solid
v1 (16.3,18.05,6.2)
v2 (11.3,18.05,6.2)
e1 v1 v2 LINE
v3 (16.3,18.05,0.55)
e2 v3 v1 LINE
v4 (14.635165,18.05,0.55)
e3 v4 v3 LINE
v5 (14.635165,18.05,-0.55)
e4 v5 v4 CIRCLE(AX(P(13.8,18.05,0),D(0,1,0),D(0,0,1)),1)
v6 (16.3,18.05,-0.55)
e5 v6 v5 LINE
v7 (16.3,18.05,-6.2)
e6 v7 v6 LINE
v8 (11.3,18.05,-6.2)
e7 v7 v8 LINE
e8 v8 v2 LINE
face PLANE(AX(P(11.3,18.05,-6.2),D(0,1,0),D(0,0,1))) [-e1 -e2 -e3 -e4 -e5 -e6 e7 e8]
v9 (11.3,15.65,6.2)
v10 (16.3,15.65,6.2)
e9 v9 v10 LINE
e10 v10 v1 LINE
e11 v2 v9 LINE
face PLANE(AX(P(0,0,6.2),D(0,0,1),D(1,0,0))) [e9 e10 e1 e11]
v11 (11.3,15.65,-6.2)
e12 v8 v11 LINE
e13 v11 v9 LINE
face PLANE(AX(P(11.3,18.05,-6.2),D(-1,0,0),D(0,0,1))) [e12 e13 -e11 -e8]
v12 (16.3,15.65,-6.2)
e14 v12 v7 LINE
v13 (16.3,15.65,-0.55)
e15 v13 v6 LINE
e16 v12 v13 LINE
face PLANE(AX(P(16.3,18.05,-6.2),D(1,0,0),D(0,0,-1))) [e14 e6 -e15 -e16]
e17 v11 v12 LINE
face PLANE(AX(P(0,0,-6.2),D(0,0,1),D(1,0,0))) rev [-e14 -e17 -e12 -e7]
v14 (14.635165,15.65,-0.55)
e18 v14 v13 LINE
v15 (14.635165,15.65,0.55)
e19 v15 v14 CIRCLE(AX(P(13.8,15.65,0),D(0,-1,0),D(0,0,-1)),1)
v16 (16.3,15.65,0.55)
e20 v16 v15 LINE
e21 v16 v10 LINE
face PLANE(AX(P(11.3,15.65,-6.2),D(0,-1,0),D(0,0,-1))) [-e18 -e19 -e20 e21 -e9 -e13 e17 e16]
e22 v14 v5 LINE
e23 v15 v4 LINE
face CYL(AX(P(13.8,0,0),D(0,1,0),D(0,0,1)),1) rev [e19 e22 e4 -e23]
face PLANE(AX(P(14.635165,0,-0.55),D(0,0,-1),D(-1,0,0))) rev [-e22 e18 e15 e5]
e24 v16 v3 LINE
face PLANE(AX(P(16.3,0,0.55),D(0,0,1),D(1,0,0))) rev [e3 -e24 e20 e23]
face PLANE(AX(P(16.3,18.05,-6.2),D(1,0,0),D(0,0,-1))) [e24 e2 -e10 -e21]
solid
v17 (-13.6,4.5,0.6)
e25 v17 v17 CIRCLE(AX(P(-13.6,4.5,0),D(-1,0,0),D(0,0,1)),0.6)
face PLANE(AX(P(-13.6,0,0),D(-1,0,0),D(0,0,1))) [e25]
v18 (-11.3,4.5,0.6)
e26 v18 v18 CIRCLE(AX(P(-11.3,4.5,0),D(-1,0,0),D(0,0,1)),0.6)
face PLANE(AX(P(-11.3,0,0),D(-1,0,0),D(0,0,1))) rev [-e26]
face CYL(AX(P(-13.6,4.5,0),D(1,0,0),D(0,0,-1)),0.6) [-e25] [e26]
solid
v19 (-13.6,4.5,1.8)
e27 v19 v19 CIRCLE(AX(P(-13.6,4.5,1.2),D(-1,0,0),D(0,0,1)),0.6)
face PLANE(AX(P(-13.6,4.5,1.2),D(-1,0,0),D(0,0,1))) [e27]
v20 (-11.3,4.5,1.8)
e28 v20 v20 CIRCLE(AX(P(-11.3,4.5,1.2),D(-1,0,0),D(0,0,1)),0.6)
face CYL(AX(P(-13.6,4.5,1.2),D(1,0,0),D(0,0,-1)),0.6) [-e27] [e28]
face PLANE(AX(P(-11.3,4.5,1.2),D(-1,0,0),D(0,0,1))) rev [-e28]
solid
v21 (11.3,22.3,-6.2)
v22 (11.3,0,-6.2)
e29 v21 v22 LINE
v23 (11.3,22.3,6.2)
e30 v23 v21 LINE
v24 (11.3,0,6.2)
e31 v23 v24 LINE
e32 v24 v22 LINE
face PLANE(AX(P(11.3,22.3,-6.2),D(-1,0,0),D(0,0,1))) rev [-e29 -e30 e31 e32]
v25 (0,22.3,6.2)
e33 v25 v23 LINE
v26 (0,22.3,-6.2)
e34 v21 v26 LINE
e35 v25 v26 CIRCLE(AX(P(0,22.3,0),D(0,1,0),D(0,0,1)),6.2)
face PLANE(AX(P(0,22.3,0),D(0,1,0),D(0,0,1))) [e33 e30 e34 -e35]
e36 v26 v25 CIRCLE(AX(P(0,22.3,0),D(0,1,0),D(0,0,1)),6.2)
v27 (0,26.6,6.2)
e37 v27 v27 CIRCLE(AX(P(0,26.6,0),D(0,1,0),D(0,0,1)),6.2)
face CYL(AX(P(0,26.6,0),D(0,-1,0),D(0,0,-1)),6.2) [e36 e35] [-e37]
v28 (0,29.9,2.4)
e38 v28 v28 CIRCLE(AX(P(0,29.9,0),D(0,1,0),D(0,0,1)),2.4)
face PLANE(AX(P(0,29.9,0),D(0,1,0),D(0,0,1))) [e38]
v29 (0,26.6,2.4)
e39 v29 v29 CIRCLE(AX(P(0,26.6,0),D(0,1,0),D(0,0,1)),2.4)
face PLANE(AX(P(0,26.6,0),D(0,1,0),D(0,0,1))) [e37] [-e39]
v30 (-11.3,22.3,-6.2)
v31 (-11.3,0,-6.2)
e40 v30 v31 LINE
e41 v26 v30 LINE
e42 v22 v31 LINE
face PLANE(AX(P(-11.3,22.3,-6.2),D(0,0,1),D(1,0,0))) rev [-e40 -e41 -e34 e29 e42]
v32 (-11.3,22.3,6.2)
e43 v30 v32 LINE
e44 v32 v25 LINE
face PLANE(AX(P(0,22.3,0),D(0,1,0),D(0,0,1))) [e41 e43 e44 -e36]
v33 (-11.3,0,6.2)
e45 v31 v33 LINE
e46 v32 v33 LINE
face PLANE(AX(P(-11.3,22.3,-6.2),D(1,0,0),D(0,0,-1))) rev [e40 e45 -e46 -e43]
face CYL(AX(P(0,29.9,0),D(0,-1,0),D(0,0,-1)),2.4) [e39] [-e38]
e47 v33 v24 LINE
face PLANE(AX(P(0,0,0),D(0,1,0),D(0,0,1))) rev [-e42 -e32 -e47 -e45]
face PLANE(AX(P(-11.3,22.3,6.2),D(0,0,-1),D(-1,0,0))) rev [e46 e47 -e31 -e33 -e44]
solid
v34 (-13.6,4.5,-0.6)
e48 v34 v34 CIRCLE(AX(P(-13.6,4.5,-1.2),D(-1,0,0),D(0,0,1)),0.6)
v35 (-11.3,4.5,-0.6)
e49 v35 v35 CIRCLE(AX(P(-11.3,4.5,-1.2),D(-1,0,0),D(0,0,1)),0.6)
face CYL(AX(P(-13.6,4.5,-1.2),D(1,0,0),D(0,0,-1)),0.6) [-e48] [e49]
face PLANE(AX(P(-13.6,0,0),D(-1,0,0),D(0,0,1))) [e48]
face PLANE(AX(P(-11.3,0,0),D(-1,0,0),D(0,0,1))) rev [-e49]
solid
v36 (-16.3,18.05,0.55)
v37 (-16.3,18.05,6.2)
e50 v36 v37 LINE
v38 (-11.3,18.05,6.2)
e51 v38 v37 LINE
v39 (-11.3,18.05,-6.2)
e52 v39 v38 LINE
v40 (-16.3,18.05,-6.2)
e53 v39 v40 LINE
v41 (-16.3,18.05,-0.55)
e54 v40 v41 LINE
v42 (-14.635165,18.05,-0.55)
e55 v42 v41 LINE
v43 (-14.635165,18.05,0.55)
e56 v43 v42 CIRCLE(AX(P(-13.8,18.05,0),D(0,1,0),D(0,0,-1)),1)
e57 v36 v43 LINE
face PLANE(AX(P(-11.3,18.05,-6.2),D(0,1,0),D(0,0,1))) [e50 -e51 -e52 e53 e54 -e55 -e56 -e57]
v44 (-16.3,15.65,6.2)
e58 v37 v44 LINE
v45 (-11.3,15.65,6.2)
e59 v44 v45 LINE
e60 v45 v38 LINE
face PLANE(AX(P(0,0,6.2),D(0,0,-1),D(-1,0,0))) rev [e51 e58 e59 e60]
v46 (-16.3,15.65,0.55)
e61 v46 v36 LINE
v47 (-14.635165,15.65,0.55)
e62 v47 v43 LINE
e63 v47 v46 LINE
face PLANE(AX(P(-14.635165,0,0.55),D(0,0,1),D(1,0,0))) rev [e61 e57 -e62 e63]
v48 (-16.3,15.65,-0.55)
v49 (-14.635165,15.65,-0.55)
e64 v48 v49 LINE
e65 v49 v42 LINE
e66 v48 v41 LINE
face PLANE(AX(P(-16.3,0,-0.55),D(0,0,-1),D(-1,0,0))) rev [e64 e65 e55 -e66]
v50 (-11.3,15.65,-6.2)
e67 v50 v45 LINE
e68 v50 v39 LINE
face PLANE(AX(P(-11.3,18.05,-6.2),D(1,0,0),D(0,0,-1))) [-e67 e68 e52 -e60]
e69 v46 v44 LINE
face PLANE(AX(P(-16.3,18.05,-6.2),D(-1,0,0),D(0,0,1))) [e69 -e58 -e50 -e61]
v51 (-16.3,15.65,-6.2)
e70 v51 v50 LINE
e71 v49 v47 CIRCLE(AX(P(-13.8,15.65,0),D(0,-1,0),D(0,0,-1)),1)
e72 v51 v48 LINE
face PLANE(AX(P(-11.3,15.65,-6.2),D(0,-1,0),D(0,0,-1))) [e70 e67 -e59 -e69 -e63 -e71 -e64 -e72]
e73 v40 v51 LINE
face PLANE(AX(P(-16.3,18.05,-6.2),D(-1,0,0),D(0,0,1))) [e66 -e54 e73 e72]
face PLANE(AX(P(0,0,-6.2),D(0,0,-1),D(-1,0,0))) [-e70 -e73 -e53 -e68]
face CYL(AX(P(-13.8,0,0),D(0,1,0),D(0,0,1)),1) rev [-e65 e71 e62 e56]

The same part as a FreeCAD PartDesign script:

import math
import FreeCAD as App
import Part
import Sketcher
Q = App.Units.Quantity

doc = App.newDocument("Part")
body = doc.addObject("PartDesign::Body", "Body")

sketch1 = body.newObject("Sketcher::SketchObject", "Sketch")
sketch1.AttachmentSupport = (doc.getObject("XZ_Plane"), [""])
sketch1.MapMode = "FlatFace"
sketch1.addGeometry(Part.LineSegment(App.Vector(-11, -6, 0), App.Vector(-11, 6, 0)), False)
sketch1.addGeometry(Part.LineSegment(App.Vector(-11, 6, 0), App.Vector(11, 6, 0)), False)
sketch1.addGeometry(Part.LineSegment(App.Vector(11, 6, 0), App.Vector(11, -6, 0)), False)
sketch1.addGeometry(Part.LineSegment(App.Vector(11, -6, 0), App.Vector(-11, -6, 0)), False)
sketch1.addConstraint(Sketcher.Constraint("Coincident", 0, 2, 1, 1))
sketch1.addConstraint(Sketcher.Constraint("Coincident", 1, 2, 2, 1))
sketch1.addConstraint(Sketcher.Constraint("Coincident", 2, 2, 3, 1))
sketch1.addConstraint(Sketcher.Constraint("Coincident", 3, 2, 0, 1))
sketch1.addConstraint(Sketcher.Constraint("Vertical", 0))
sketch1.addConstraint(Sketcher.Constraint("Horizontal", 1))
sketch1.addConstraint(Sketcher.Constraint("Vertical", 2))
sketch1.addConstraint(Sketcher.Constraint("Horizontal", 3))
sketch1.addConstraint(Sketcher.Constraint("Symmetric", 0, 2, 2, 2, -1, 1))
sketch1.addConstraint(Sketcher.Constraint("DistanceX", 1, 1, 1, 2, Q("22.6 mm")))
sketch1.addConstraint(Sketcher.Constraint("DistanceY", 0, 1, 0, 2, Q("12.4 mm")))
pad1 = body.newObject("PartDesign::Pad", "Pad")
pad1.Profile = sketch1
pad1.Length = 22.3
pad1.Reversed = True

sketch2 = body.newObject("Sketcher::SketchObject", "Sketch001")
sketch2.AttachmentSupport = (doc.getObject("XZ_Plane"), [""])
sketch2.MapMode = "FlatFace"
sketch2.AttachmentOffset = App.Placement(App.Vector(0, 0, -22.3), App.Rotation())
sketch2.addGeometry(Part.Circle(App.Vector(0, 0, 0), App.Vector(0, 0, 1), 6), False)
sketch2.addConstraint(Sketcher.Constraint("Coincident", 0, 3, -1, 1))
sketch2.addConstraint(Sketcher.Constraint("Diameter", 0, Q("12.4 mm")))
pad2 = body.newObject("PartDesign::Pad", "Pad001")
pad2.Profile = sketch2
pad2.Length = 4.3
pad2.Reversed = True

sketch3 = body.newObject("Sketcher::SketchObject", "Sketch002")
sketch3.AttachmentSupport = (doc.getObject("XZ_Plane"), [""])
sketch3.MapMode = "FlatFace"
sketch3.AttachmentOffset = App.Placement(App.Vector(0, 0, -26.6), App.Rotation())
sketch3.addGeometry(Part.Circle(App.Vector(0, 0, 0), App.Vector(0, 0, 1), 2.4), False)
sketch3.addConstraint(Sketcher.Constraint("Coincident", 0, 3, -1, 1))
sketch3.addConstraint(Sketcher.Constraint("Diameter", 0, Q("4.8 mm")))
pad3 = body.newObject("PartDesign::Pad", "Pad002")
pad3.Profile = sketch3
pad3.Length = 3.3
pad3.Reversed = True
body2 = doc.addObject("PartDesign::Body", "Body001")

sketch4 = body2.newObject("Sketcher::SketchObject", "Sketch003")
sketch4.AttachmentSupport = (doc.getObject("XY_Plane001"), [""])
sketch4.MapMode = "FlatFace"
sketch4.AttachmentOffset = App.Placement(App.Vector(0, 0, 6.2), App.Rotation())
sketch4.addGeometry(Part.LineSegment(App.Vector(11.3, 18.1, 0), App.Vector(11.3, 15.7, 0)), False)
sketch4.addGeometry(Part.LineSegment(App.Vector(11.3, 15.7, 0), App.Vector(16.3, 15.7, 0)), False)
sketch4.addGeometry(Part.LineSegment(App.Vector(16.3, 15.7, 0), App.Vector(16.3, 18.1, 0)), False)
sketch4.addGeometry(Part.LineSegment(App.Vector(16.3, 18.1, 0), App.Vector(11.3, 18.1, 0)), False)
sketch4.addConstraint(Sketcher.Constraint("Coincident", 0, 2, 1, 1))
sketch4.addConstraint(Sketcher.Constraint("Coincident", 1, 2, 2, 1))
sketch4.addConstraint(Sketcher.Constraint("Coincident", 2, 2, 3, 1))
sketch4.addConstraint(Sketcher.Constraint("Coincident", 3, 2, 0, 1))
sketch4.addConstraint(Sketcher.Constraint("Vertical", 0))
sketch4.addConstraint(Sketcher.Constraint("Horizontal", 1))
sketch4.addConstraint(Sketcher.Constraint("Vertical", 2))
sketch4.addConstraint(Sketcher.Constraint("Horizontal", 3))
sketch4.addConstraint(Sketcher.Constraint("DistanceX", 1, 1, 1, 2, Q("5 mm")))
sketch4.addConstraint(Sketcher.Constraint("DistanceY", 0, 2, 0, 1, Q("2.4 mm")))
sketch4.addConstraint(Sketcher.Constraint("DistanceX", -1, 1, 0, 2, Q("11.3 mm")))
sketch4.addConstraint(Sketcher.Constraint("DistanceY", -1, 1, 0, 2, Q("15.65 mm")))
pad4 = body2.newObject("PartDesign::Pad", "Pad003")
pad4.Profile = sketch4
pad4.Length = 12.4
pad4.Reversed = True
body3 = doc.addObject("PartDesign::Body", "Body002")

sketch5 = body3.newObject("Sketcher::SketchObject", "Sketch004")
sketch5.AttachmentSupport = (doc.getObject("XY_Plane002"), [""])
sketch5.MapMode = "FlatFace"
sketch5.AttachmentOffset = App.Placement(App.Vector(0, 0, 6.2), App.Rotation())
sketch5.addGeometry(Part.LineSegment(App.Vector(-16.3, 18.1, 0), App.Vector(-16.3, 15.7, 0)), False)
sketch5.addGeometry(Part.LineSegment(App.Vector(-16.3, 15.7, 0), App.Vector(-11.3, 15.7, 0)), False)
sketch5.addGeometry(Part.LineSegment(App.Vector(-11.3, 15.7, 0), App.Vector(-11.3, 18.1, 0)), False)
sketch5.addGeometry(Part.LineSegment(App.Vector(-11.3, 18.1, 0), App.Vector(-16.3, 18.1, 0)), False)
sketch5.addConstraint(Sketcher.Constraint("Coincident", 0, 2, 1, 1))
sketch5.addConstraint(Sketcher.Constraint("Coincident", 1, 2, 2, 1))
sketch5.addConstraint(Sketcher.Constraint("Coincident", 2, 2, 3, 1))
sketch5.addConstraint(Sketcher.Constraint("Coincident", 3, 2, 0, 1))
sketch5.addConstraint(Sketcher.Constraint("Vertical", 0))
sketch5.addConstraint(Sketcher.Constraint("Horizontal", 1))
sketch5.addConstraint(Sketcher.Constraint("Vertical", 2))
sketch5.addConstraint(Sketcher.Constraint("Horizontal", 3))
sketch5.addConstraint(Sketcher.Constraint("DistanceX", 1, 1, 1, 2, Q("5 mm")))
sketch5.addConstraint(Sketcher.Constraint("DistanceY", 0, 2, 0, 1, Q("2.4 mm")))
sketch5.addConstraint(Sketcher.Constraint("DistanceX", 0, 2, -1, 1, Q("16.3 mm")))
sketch5.addConstraint(Sketcher.Constraint("DistanceY", -1, 1, 0, 2, Q("15.65 mm")))
pad5 = body3.newObject("PartDesign::Pad", "Pad004")
pad5.Profile = sketch5
pad5.Length = 12.4
pad5.Reversed = True
body4 = doc.addObject("PartDesign::Body", "Body003")
body4.AllowCompound = True

sketch6 = body4.newObject("Sketcher::SketchObject", "Sketch005")
sketch6.AttachmentSupport = (doc.getObject("XZ_Plane003"), [""])
sketch6.MapMode = "FlatFace"
sketch6.AttachmentOffset = App.Placement(App.Vector(0, 0, -18.05), App.Rotation())
sketch6.addGeometry(Part.LineSegment(App.Vector(16.3, -0.6, 0), App.Vector(14.6, -0.6, 0)), False)
sketch6.addGeometry(Part.ArcOfCircle(Part.Circle(App.Vector(13.8, 0, 0), App.Vector(0, 0, 1), 1), math.radians(33), math.radians(327)), False)
sketch6.addGeometry(Part.LineSegment(App.Vector(14.6, 0.6, 0), App.Vector(16.3, 0.6, 0)), False)
sketch6.addGeometry(Part.LineSegment(App.Vector(16.3, 0.6, 0), App.Vector(16.3, -0.6, 0)), False)
sketch6.addGeometry(Part.LineSegment(App.Vector(-16.3, 0.6, 0), App.Vector(-14.6, 0.6, 0)), False)
sketch6.addGeometry(Part.ArcOfCircle(Part.Circle(App.Vector(-13.8, 0, 0), App.Vector(0, 0, 1), 1), math.radians(-147), math.radians(147)), False)
sketch6.addGeometry(Part.LineSegment(App.Vector(-14.6, -0.6, 0), App.Vector(-16.3, -0.6, 0)), False)
sketch6.addGeometry(Part.LineSegment(App.Vector(-16.3, -0.6, 0), App.Vector(-16.3, 0.6, 0)), False)
sketch6.addConstraint(Sketcher.Constraint("Coincident", 0, 2, 1, 2))
sketch6.addConstraint(Sketcher.Constraint("Coincident", 1, 1, 2, 1))
sketch6.addConstraint(Sketcher.Constraint("Coincident", 2, 2, 3, 1))
sketch6.addConstraint(Sketcher.Constraint("Coincident", 3, 2, 0, 1))
sketch6.addConstraint(Sketcher.Constraint("Coincident", 4, 2, 5, 2))
sketch6.addConstraint(Sketcher.Constraint("Coincident", 5, 1, 6, 1))
sketch6.addConstraint(Sketcher.Constraint("Coincident", 6, 2, 7, 1))
sketch6.addConstraint(Sketcher.Constraint("Coincident", 7, 2, 4, 1))
sketch6.addConstraint(Sketcher.Constraint("Horizontal", 0))
sketch6.addConstraint(Sketcher.Constraint("Horizontal", 2))
sketch6.addConstraint(Sketcher.Constraint("Vertical", 3))
sketch6.addConstraint(Sketcher.Constraint("Horizontal", 4))
sketch6.addConstraint(Sketcher.Constraint("Horizontal", 6))
sketch6.addConstraint(Sketcher.Constraint("Vertical", 7))
sketch6.addConstraint(Sketcher.Constraint("Equal", 1, 5))
sketch6.addConstraint(Sketcher.Constraint("Symmetric", 1, 3, 5, 3, -1, 1))
sketch6.addConstraint(Sketcher.Constraint("Symmetric", 2, 2, 6, 2, -1, 1))
sketch6.addConstraint(Sketcher.Constraint("Symmetric", 1, 1, 4, 2, -2))
sketch6.addConstraint(Sketcher.Constraint("Horizontal", 3, 2, 5, 1))
sketch6.addConstraint(Sketcher.Constraint("Radius", 1, Q("1 mm")))
sketch6.addConstraint(Sketcher.Constraint("DistanceY", 3, 2, 3, 1, Q("1.1 mm")))
sketch6.addConstraint(Sketcher.Constraint("DistanceX", -1, 1, 1, 3, Q("13.8 mm")))
sketch6.addConstraint(Sketcher.Constraint("DistanceX", -1, 1, 2, 2, Q("16.3 mm")))
pad6 = body4.newObject("PartDesign::Pad", "Pad005")
pad6.Profile = sketch6
pad6.Length = 26.098456
doc.recompute()

body5 = doc.addObject("PartDesign::Body", "Body004")
body5.BaseFeature = body4
boolean = body2.newObject("PartDesign::Boolean", "Boolean")
boolean.Type = "Cut"
boolean.addObjects([body5])
doc.recompute()

boolean2 = body3.newObject("PartDesign::Boolean", "Boolean001")
boolean2.Type = "Cut"
boolean2.addObjects([body4])
body6 = doc.addObject("PartDesign::Body", "Body005")

sketch7 = body6.newObject("Sketcher::SketchObject", "Sketch006")
sketch7.AttachmentSupport = (doc.getObject("YZ_Plane005"), [""])
sketch7.MapMode = "FlatFace"
sketch7.AttachmentOffset = App.Placement(App.Vector(0, 0, -11.3), App.Rotation())
sketch7.addGeometry(Part.Circle(App.Vector(4.5, 0, 0), App.Vector(0, 0, 1), 0.6), False)
sketch7.addConstraint(Sketcher.Constraint("PointOnObject", 0, 3, -1))
sketch7.addConstraint(Sketcher.Constraint("Diameter", 0, Q("1.2 mm")))
sketch7.addConstraint(Sketcher.Constraint("DistanceX", -1, 1, 0, 3, Q("4.5 mm")))
pad7 = body6.newObject("PartDesign::Pad", "Pad006")
pad7.Profile = sketch7
pad7.Length = 2.3
pad7.Reversed = True
body7 = doc.addObject("PartDesign::Body", "Body006")

sketch8 = body7.newObject("Sketcher::SketchObject", "Sketch007")
sketch8.AttachmentSupport = (doc.getObject("YZ_Plane006"), [""])
sketch8.MapMode = "FlatFace"
sketch8.AttachmentOffset = App.Placement(App.Vector(0, 0, -11.3), App.Rotation())
sketch8.addGeometry(Part.Circle(App.Vector(4.5, 1.2, 0), App.Vector(0, 0, 1), 0.6), False)
sketch8.addConstraint(Sketcher.Constraint("Diameter", 0, Q("1.2 mm")))
sketch8.addConstraint(Sketcher.Constraint("DistanceX", -1, 1, 0, 3, Q("4.5 mm")))
sketch8.addConstraint(Sketcher.Constraint("DistanceY", -1, 1, 0, 3, Q("1.2 mm")))
pad8 = body7.newObject("PartDesign::Pad", "Pad007")
pad8.Profile = sketch8
pad8.Length = 2.3
pad8.Reversed = True
body8 = doc.addObject("PartDesign::Body", "Body007")

sketch9 = body8.newObject("Sketcher::SketchObject", "Sketch008")
sketch9.AttachmentSupport = (doc.getObject("YZ_Plane007"), [""])
sketch9.MapMode = "FlatFace"
sketch9.AttachmentOffset = App.Placement(App.Vector(0, 0, -11.3), App.Rotation())
sketch9.addGeometry(Part.Circle(App.Vector(4.5, -1.2, 0), App.Vector(0, 0, 1), 0.6), False)
sketch9.addConstraint(Sketcher.Constraint("Diameter", 0, Q("1.2 mm")))
sketch9.addConstraint(Sketcher.Constraint("DistanceX", -1, 1, 0, 3, Q("4.5 mm")))
sketch9.addConstraint(Sketcher.Constraint("DistanceY", 0, 3, -1, 1, Q("1.2 mm")))
pad9 = body8.newObject("PartDesign::Pad", "Pad008")
pad9.Profile = sketch9
pad9.Length = 2.3
pad9.Reversed = True

doc.recompute()
